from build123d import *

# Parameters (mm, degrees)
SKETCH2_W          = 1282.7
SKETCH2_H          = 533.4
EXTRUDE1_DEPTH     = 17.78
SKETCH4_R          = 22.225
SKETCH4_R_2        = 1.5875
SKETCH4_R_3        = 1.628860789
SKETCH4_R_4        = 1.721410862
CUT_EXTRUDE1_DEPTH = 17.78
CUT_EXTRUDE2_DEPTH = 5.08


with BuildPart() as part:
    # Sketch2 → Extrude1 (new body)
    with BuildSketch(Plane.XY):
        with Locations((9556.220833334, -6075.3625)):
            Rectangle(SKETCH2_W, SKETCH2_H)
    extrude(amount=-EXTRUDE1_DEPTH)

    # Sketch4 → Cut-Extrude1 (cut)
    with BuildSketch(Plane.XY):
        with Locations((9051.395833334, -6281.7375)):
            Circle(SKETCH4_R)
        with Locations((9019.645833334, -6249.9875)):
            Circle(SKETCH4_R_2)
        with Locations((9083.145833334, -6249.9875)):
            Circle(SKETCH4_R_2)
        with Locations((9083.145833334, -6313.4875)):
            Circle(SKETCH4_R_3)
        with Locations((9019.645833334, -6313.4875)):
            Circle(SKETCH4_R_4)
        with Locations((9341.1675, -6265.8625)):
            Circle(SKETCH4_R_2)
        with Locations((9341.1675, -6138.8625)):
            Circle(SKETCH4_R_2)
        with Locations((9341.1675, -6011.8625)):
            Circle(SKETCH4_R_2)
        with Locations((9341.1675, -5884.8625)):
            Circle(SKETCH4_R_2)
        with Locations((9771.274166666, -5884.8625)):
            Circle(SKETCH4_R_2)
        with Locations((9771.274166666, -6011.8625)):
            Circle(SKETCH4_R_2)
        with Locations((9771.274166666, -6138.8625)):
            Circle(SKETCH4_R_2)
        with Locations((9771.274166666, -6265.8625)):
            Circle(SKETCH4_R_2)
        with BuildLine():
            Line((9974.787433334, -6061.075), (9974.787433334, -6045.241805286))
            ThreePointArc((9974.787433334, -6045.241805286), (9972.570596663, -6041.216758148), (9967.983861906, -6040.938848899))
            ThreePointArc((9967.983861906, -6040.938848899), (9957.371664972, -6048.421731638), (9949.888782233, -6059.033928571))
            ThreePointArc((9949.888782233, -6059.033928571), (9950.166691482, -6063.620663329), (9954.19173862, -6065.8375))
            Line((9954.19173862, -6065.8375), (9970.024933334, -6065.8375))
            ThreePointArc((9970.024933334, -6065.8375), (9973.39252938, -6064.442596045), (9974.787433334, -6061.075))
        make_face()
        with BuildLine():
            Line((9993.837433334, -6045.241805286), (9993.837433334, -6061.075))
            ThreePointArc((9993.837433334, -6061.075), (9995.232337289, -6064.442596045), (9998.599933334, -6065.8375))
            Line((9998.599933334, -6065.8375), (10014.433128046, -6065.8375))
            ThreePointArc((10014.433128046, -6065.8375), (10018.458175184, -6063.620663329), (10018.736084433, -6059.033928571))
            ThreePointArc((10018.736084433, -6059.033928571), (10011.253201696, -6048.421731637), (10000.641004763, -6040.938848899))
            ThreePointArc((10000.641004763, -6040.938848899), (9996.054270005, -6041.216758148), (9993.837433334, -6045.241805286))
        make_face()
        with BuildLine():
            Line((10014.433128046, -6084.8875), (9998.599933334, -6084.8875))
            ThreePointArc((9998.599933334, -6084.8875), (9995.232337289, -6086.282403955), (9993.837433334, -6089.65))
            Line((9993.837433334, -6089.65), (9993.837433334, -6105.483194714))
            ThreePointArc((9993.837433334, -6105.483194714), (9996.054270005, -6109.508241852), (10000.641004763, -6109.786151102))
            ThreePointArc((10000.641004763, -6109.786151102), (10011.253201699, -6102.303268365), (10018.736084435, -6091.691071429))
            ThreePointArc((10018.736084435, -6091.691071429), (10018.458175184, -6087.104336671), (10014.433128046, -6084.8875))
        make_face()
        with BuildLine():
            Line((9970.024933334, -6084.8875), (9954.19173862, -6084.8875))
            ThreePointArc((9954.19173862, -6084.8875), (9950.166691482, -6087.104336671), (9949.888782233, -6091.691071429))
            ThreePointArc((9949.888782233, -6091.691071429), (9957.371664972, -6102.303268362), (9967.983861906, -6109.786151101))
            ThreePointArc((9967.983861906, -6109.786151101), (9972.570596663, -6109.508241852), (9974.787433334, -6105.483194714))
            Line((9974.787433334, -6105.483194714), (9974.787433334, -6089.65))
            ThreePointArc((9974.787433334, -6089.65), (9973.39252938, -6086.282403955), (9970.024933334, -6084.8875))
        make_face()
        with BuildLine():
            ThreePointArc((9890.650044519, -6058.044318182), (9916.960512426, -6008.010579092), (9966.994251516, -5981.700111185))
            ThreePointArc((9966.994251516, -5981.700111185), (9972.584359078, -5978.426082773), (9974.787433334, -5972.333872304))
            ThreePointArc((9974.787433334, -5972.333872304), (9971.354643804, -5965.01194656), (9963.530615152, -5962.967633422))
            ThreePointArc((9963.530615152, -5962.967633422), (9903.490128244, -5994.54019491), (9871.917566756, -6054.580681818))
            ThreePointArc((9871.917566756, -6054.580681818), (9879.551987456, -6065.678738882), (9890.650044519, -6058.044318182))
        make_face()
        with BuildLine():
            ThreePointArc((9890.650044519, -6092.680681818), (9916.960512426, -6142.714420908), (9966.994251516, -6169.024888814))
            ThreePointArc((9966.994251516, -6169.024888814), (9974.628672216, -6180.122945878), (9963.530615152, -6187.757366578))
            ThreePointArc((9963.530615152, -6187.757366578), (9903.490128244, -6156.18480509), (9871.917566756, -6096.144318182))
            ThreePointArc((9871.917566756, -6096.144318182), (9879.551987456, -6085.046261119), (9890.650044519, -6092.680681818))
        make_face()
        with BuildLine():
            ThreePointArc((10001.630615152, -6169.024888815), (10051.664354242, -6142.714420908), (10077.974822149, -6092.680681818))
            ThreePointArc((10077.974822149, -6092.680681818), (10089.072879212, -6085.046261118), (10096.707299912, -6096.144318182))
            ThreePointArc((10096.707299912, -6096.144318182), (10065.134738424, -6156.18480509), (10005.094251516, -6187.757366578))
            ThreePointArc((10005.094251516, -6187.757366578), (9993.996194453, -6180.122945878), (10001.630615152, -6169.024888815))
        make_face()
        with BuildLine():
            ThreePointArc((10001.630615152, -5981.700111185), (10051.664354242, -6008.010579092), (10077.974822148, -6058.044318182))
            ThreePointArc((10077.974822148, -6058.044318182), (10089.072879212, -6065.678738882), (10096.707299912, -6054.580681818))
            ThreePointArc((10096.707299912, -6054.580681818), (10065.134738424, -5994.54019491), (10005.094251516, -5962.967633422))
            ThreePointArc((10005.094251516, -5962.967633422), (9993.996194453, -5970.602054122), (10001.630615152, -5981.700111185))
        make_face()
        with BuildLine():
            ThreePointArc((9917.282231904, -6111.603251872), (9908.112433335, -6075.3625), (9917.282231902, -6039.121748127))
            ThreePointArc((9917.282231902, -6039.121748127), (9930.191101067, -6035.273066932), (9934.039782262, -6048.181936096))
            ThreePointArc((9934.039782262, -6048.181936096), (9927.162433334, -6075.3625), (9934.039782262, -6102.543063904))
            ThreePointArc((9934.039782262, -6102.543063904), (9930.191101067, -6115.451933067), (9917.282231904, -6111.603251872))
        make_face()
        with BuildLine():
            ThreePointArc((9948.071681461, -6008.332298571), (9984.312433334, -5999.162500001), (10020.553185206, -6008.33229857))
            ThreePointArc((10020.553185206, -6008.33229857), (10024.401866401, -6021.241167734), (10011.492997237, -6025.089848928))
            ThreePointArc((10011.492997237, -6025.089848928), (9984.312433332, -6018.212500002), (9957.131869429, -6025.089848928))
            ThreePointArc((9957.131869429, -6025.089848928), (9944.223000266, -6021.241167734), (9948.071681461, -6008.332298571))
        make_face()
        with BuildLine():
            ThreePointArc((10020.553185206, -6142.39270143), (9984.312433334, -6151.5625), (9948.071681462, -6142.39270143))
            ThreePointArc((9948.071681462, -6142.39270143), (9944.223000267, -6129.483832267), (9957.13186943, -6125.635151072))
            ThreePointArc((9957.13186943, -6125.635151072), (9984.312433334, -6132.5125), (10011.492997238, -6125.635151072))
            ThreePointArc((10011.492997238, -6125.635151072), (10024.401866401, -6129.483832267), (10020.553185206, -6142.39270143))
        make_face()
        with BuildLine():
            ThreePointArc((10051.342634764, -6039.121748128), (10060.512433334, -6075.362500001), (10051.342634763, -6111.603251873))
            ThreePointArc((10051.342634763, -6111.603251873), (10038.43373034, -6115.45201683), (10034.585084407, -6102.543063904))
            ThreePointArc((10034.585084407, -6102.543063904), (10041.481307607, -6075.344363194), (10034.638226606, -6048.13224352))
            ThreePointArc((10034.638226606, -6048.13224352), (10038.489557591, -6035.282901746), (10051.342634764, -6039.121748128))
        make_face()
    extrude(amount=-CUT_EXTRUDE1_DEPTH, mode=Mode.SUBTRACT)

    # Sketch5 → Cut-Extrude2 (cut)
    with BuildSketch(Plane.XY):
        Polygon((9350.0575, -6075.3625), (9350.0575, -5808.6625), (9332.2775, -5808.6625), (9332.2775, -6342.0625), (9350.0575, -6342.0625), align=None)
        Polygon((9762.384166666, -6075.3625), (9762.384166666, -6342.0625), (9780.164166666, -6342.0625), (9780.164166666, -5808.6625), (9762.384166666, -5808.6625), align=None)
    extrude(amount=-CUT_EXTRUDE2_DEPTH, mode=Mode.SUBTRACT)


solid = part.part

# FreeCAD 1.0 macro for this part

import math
import FreeCAD as App
import Part
import Sketcher
from FreeCAD import Vector
Q = App.Units.Quantity


def add_polygon(sketch, points):
    """Adds a closed chain of lines whose ends are joined by coincident constraints."""
    first, n = sketch.GeometryCount, len(points)
    for a, b in zip(points, points[1:] + points[:1]):
        sketch.addGeometry(Part.LineSegment(App.Vector(*a, 0), App.Vector(*b, 0)), False)
    for i in range(n):
        sketch.addConstraint(Sketcher.Constraint("Coincident", first + i, 2, first + (i + 1) % n, 1))

doc = App.newDocument("Part")
body = doc.addObject("PartDesign::Body", "Body")

sketch1 = body.newObject("Sketcher::SketchObject", "Sketch")
sketch1.AttachmentSupport = (doc.getObject("XY_Plane"), [""])
sketch1.MapMode = "FlatFace"
add_polygon(sketch1, [(8915, -5809), (8915, -6342), (10198, -6342), (10198, -5809)])
sketch1.addConstraint(Sketcher.Constraint("Vertical", 0))
sketch1.addConstraint(Sketcher.Constraint("Horizontal", 1))
sketch1.addConstraint(Sketcher.Constraint("Vertical", 2))
sketch1.addConstraint(Sketcher.Constraint("Horizontal", 3))
sketch1.addConstraint(Sketcher.Constraint("DistanceY", 0, 2, 0, 1, Q("21 in")))
sketch1.addConstraint(Sketcher.Constraint("DistanceX", 1, 1, 1, 2, Q("50.5 in")))
sketch1.addConstraint(Sketcher.Constraint("DistanceY", 0, 2, -1, 1, Q("249.6875 in")))
sketch1.addConstraint(Sketcher.Constraint("DistanceX", -1, 1, 0, 2, 8914.870833))
pad1 = body.newObject("PartDesign::Pad", "Pad")
pad1.Profile = sketch1
pad1.Length = Q("0.7 in")
pad1.Reversed = True

sketch2 = body.newObject("Sketcher::SketchObject", "Sketch001")
sketch2.AttachmentSupport = (doc.getObject("XY_Plane"), [""])
sketch2.MapMode = "FlatFace"
sketch2.addGeometry(Part.Circle(Vector(9051.4, -6281.7, 0), Vector(0, 0, 1), 22.2), False)
sketch2.addGeometry(Part.Circle(Vector(9019.6, -6250, 0), Vector(0, 0, 1), 1.6), False)
sketch2.addGeometry(Part.Circle(Vector(9083.1, -6250, 0), Vector(0, 0, 1), 1.6), False)
sketch2.addGeometry(Part.Circle(Vector(9083.1, -6313.5, 0), Vector(0, 0, 1), 1.6), False)
sketch2.addGeometry(Part.Circle(Vector(9019.6, -6313.5, 0), Vector(0, 0, 1), 1.7), False)
sketch2.addGeometry(Part.Circle(Vector(9341.2, -6265.9, 0), Vector(0, 0, 1), 1.6), False)
sketch2.addGeometry(Part.Circle(Vector(9341.2, -6138.9, 0), Vector(0, 0, 1), 1.6), False)
sketch2.addGeometry(Part.Circle(Vector(9341.2, -6011.9, 0), Vector(0, 0, 1), 1.6), False)
sketch2.addGeometry(Part.Circle(Vector(9341.2, -5884.9, 0), Vector(0, 0, 1), 1.6), False)
sketch2.addGeometry(Part.Circle(Vector(9771.3, -5884.9, 0), Vector(0, 0, 1), 1.6), False)
sketch2.addGeometry(Part.Circle(Vector(9771.3, -6011.9, 0), Vector(0, 0, 1), 1.6), False)
sketch2.addGeometry(Part.Circle(Vector(9771.3, -6138.9, 0), Vector(0, 0, 1), 1.6), False)
sketch2.addGeometry(Part.Circle(Vector(9771.3, -6265.9, 0), Vector(0, 0, 1), 1.6), False)
sketch2.addGeometry(Part.LineSegment(Vector(9974.8, -6061.1, 0), Vector(9974.8, -6045.2, 0)), False)
sketch2.addGeometry(Part.ArcOfCircle(Part.Circle(Vector(9970, -6045.2, 0), Vector(0, 0, 1), 4.8), math.radians(0), math.radians(115)), False)
sketch2.addGeometry(Part.ArcOfCircle(Part.Circle(Vector(9984.3, -6075.4, 0), Vector(0, 0, 1), 38.1), math.radians(115), math.radians(155)), False)
sketch2.addGeometry(Part.ArcOfCircle(Part.Circle(Vector(9954.2, -6061.1, 0), Vector(0, 0, 1), 4.8), math.radians(155), math.radians(270)), False)
sketch2.addGeometry(Part.LineSegment(Vector(9954.2, -6065.8, 0), Vector(9970, -6065.8, 0)), False)
sketch2.addGeometry(Part.ArcOfCircle(Part.Circle(Vector(9970, -6061.1, 0), Vector(0, 0, 1), 4.8), math.radians(-90), math.radians(0)), False)
sketch2.addGeometry(Part.LineSegment(Vector(9993.8, -6045.2, 0), Vector(9993.8, -6061.1, 0)), False)
sketch2.addGeometry(Part.ArcOfCircle(Part.Circle(Vector(9998.6, -6061.1, 0), Vector(0, 0, 1), 4.8), math.radians(-180), math.radians(-90)), False)
sketch2.addGeometry(Part.LineSegment(Vector(9998.6, -6065.8, 0), Vector(10014.4, -6065.8, 0)), False)
sketch2.addGeometry(Part.ArcOfCircle(Part.Circle(Vector(10014.4, -6061.1, 0), Vector(0, 0, 1), 4.8), math.radians(-90), math.radians(25)), False)
sketch2.addGeometry(Part.ArcOfCircle(Part.Circle(Vector(9984.3, -6075.4, 0), Vector(0, 0, 1), 38.1), math.radians(25), math.radians(65)), False)
sketch2.addGeometry(Part.ArcOfCircle(Part.Circle(Vector(9998.6, -6045.2, 0), Vector(0, 0, 1), 4.8), math.radians(65), math.radians(180)), False)
sketch2.addGeometry(Part.LineSegment(Vector(10014.4, -6084.9, 0), Vector(9998.6, -6084.9, 0)), False)
sketch2.addGeometry(Part.ArcOfCircle(Part.Circle(Vector(9998.6, -6089.7, 0), Vector(0, 0, 1), 4.8), math.radians(90), math.radians(180)), False)
sketch2.addGeometry(Part.LineSegment(Vector(9993.8, -6089.6, 0), Vector(9993.8, -6105.5, 0)), False)
sketch2.addGeometry(Part.ArcOfCircle(Part.Circle(Vector(9998.6, -6105.5, 0), Vector(0, 0, 1), 4.8), math.radians(-180), math.radians(-65)), False)
sketch2.addGeometry(Part.ArcOfCircle(Part.Circle(Vector(9984.3, -6075.4, 0), Vector(0, 0, 1), 38.1), math.radians(-65), math.radians(-25)), False)
sketch2.addGeometry(Part.ArcOfCircle(Part.Circle(Vector(10014.4, -6089.7, 0), Vector(0, 0, 1), 4.8), math.radians(-25), math.radians(90)), False)
sketch2.addGeometry(Part.LineSegment(Vector(9970, -6084.9, 0), Vector(9954.2, -6084.9, 0)), False)
sketch2.addGeometry(Part.ArcOfCircle(Part.Circle(Vector(9954.2, -6089.6, 0), Vector(0, 0, 1), 4.8), math.radians(90), math.radians(205)), False)
sketch2.addGeometry(Part.ArcOfCircle(Part.Circle(Vector(9984.3, -6075.4, 0), Vector(0, 0, 1), 38.1), math.radians(-155), math.radians(-115)), False)
sketch2.addGeometry(Part.ArcOfCircle(Part.Circle(Vector(9970, -6105.5, 0), Vector(0, 0, 1), 4.8), math.radians(-115), math.radians(0)), False)
sketch2.addGeometry(Part.LineSegment(Vector(9974.8, -6105.5, 0), Vector(9974.8, -6089.6, 0)), False)
sketch2.addGeometry(Part.ArcOfCircle(Part.Circle(Vector(9970, -6089.6, 0), Vector(0, 0, 1), 4.8), math.radians(0), math.radians(90)), False)
sketch2.addGeometry(Part.ArcOfCircle(Part.Circle(Vector(9984.3, -6075.4, 0), Vector(0, 0, 1), 95.3), math.radians(100), math.radians(170)), False)
sketch2.addGeometry(Part.ArcOfCircle(Part.Circle(Vector(9965.3, -5972.3, 0), Vector(0, 0, 1), 9.5), math.radians(-80), math.radians(0)), False)
sketch2.addGeometry(Part.ArcOfCircle(Part.Circle(Vector(9965.3, -5972.3, 0), Vector(0, 0, 1), 9.5), math.radians(0), math.radians(100)), False)
sketch2.addGeometry(Part.ArcOfCircle(Part.Circle(Vector(9984.3, -6075.4, 0), Vector(0, 0, 1), 114.3), math.radians(100), math.radians(170)), False)
sketch2.addGeometry(Part.ArcOfCircle(Part.Circle(Vector(9881.3, -6056.3, 0), Vector(0, 0, 1), 9.5), math.radians(170), math.radians(350)), False)
sketch2.addGeometry(Part.ArcOfCircle(Part.Circle(Vector(9984.3, -6075.4, 0), Vector(0, 0, 1), 95.2), math.radians(-170), math.radians(-100)), False)
sketch2.addGeometry(Part.ArcOfCircle(Part.Circle(Vector(9881.3, -6094.4, 0), Vector(0, 0, 1), 9.5), math.radians(10), math.radians(190)), False)
sketch2.addGeometry(Part.ArcOfCircle(Part.Circle(Vector(9984.3, -6075.4, 0), Vector(0, 0, 1), 114.3), math.radians(-170), math.radians(-100)), False)
sketch2.addGeometry(Part.ArcOfCircle(Part.Circle(Vector(9965.3, -6178.4, 0), Vector(0, 0, 1), 9.5), math.radians(-100), math.radians(80)), False)
sketch2.addGeometry(Part.ArcOfCircle(Part.Circle(Vector(9984.3, -6075.4, 0), Vector(0, 0, 1), 95.3), math.radians(-80), math.radians(-10)), False)
sketch2.addGeometry(Part.ArcOfCircle(Part.Circle(Vector(10003.4, -6178.4, 0), Vector(0, 0, 1), 9.5), math.radians(100), math.radians(280)), False)
sketch2.addGeometry(Part.ArcOfCircle(Part.Circle(Vector(9984.3, -6075.4, 0), Vector(0, 0, 1), 114.3), math.radians(-80), math.radians(-10)), False)
sketch2.addGeometry(Part.ArcOfCircle(Part.Circle(Vector(10087.3, -6094.4, 0), Vector(0, 0, 1), 9.5), math.radians(-10), math.radians(170)), False)
sketch2.addGeometry(Part.ArcOfCircle(Part.Circle(Vector(9984.3, -6075.4, 0), Vector(0, 0, 1), 95.2), math.radians(10), math.radians(80)), False)
sketch2.addGeometry(Part.ArcOfCircle(Part.Circle(Vector(10087.3, -6056.3, 0), Vector(0, 0, 1), 9.5), math.radians(-170), math.radians(10)), False)
sketch2.addGeometry(Part.ArcOfCircle(Part.Circle(Vector(9984.3, -6075.4, 0), Vector(0, 0, 1), 114.3), math.radians(10), math.radians(80)), False)
sketch2.addGeometry(Part.ArcOfCircle(Part.Circle(Vector(10003.4, -5972.3, 0), Vector(0, 0, 1), 9.5), math.radians(80), math.radians(260)), False)
sketch2.addGeometry(Part.ArcOfCircle(Part.Circle(Vector(9984.3, -6075.4, 0), Vector(0, 0, 1), 76.2), math.radians(152), math.radians(208)), False)
sketch2.addGeometry(Part.ArcOfCircle(Part.Circle(Vector(9925.7, -6107.1, 0), Vector(0, 0, 1), 9.5), math.radians(-152), math.radians(28)), False)
sketch2.addGeometry(Part.ArcOfCircle(Part.Circle(Vector(9984.3, -6075.4, 0), Vector(0, 0, 1), 57.1), math.radians(152), math.radians(208)), False)
sketch2.addGeometry(Part.ArcOfCircle(Part.Circle(Vector(9925.7, -6043.7, 0), Vector(0, 0, 1), 9.5), math.radians(-28), math.radians(152)), False)
sketch2.addGeometry(Part.ArcOfCircle(Part.Circle(Vector(9984.3, -6075.4, 0), Vector(0, 0, 1), 76.2), math.radians(62), math.radians(118)), False)
sketch2.addGeometry(Part.ArcOfCircle(Part.Circle(Vector(9952.6, -6016.7, 0), Vector(0, 0, 1), 9.5), math.radians(118), math.radians(298)), False)
sketch2.addGeometry(Part.ArcOfCircle(Part.Circle(Vector(9984.3, -6075.4, 0), Vector(0, 0, 1), 57.2), math.radians(62), math.radians(118)), False)
sketch2.addGeometry(Part.ArcOfCircle(Part.Circle(Vector(10016, -6016.7, 0), Vector(0, 0, 1), 9.5), math.radians(-118), math.radians(62)), False)
sketch2.addGeometry(Part.ArcOfCircle(Part.Circle(Vector(9984.3, -6075.4, 0), Vector(0, 0, 1), 76.2), math.radians(-118), math.radians(-62)), False)
sketch2.addGeometry(Part.ArcOfCircle(Part.Circle(Vector(10016, -6134, 0), Vector(0, 0, 1), 9.5), math.radians(-62), math.radians(118)), False)
sketch2.addGeometry(Part.ArcOfCircle(Part.Circle(Vector(9984.3, -6075.4, 0), Vector(0, 0, 1), 57.1), math.radians(-118), math.radians(-62)), False)
sketch2.addGeometry(Part.ArcOfCircle(Part.Circle(Vector(9952.6, -6134, 0), Vector(0, 0, 1), 9.5), math.radians(62), math.radians(242)), False)
sketch2.addGeometry(Part.ArcOfCircle(Part.Circle(Vector(9984.3, -6075.4, 0), Vector(0, 0, 1), 76.2), math.radians(-28), math.radians(28)), False)
sketch2.addGeometry(Part.ArcOfCircle(Part.Circle(Vector(10043, -6043.6, 0), Vector(0, 0, 1), 9.5), math.radians(28), math.radians(208)), False)
sketch2.addGeometry(Part.ArcOfCircle(Part.Circle(Vector(9984.2, -6075.3, 0), Vector(0, 0, 1), 57.3), math.radians(-28), math.radians(28)), False)
sketch2.addGeometry(Part.ArcOfCircle(Part.Circle(Vector(10043, -6107.1, 0), Vector(0, 0, 1), 9.5), math.radians(152), math.radians(332)), False)
sketch2.addConstraint(Sketcher.Constraint("Tangent", 13, 2, 14, 1))
sketch2.addConstraint(Sketcher.Constraint("Tangent", 14, 2, 15, 1))
sketch2.addConstraint(Sketcher.Constraint("Tangent", 15, 2, 16, 1))
sketch2.addConstraint(Sketcher.Constraint("Tangent", 16, 2, 17, 1))
sketch2.addConstraint(Sketcher.Constraint("Tangent", 17, 2, 18, 1))
sketch2.addConstraint(Sketcher.Constraint("Tangent", 18, 2, 13, 1))
sketch2.addConstraint(Sketcher.Constraint("Tangent", 19, 2, 20, 1))
sketch2.addConstraint(Sketcher.Constraint("Tangent", 20, 2, 21, 1))
sketch2.addConstraint(Sketcher.Constraint("Tangent", 21, 2, 22, 1))
sketch2.addConstraint(Sketcher.Constraint("Tangent", 22, 2, 23, 1))
sketch2.addConstraint(Sketcher.Constraint("Tangent", 23, 2, 24, 1))
sketch2.addConstraint(Sketcher.Constraint("Tangent", 24, 2, 19, 1))
sketch2.addConstraint(Sketcher.Constraint("Tangent", 25, 2, 26, 1))
sketch2.addConstraint(Sketcher.Constraint("Tangent", 26, 2, 27, 1))
sketch2.addConstraint(Sketcher.Constraint("Tangent", 27, 2, 28, 1))
sketch2.addConstraint(Sketcher.Constraint("Tangent", 28, 2, 29, 1))
sketch2.addConstraint(Sketcher.Constraint("Tangent", 29, 2, 30, 1))
sketch2.addConstraint(Sketcher.Constraint("Tangent", 30, 2, 25, 1))
sketch2.addConstraint(Sketcher.Constraint("Tangent", 31, 2, 32, 1))
sketch2.addConstraint(Sketcher.Constraint("Tangent", 32, 2, 33, 1))
sketch2.addConstraint(Sketcher.Constraint("Tangent", 33, 2, 34, 1))
sketch2.addConstraint(Sketcher.Constraint("Tangent", 34, 2, 35, 1))
sketch2.addConstraint(Sketcher.Constraint("Tangent", 35, 2, 36, 1))
sketch2.addConstraint(Sketcher.Constraint("Tangent", 36, 2, 31, 1))
sketch2.addConstraint(Sketcher.Constraint("Tangent", 37, 1, 38, 1))
sketch2.addConstraint(Sketcher.Constraint("Tangent", 38, 2, 39, 1))
sketch2.addConstraint(Sketcher.Constraint("Tangent", 39, 2, 40, 1))
sketch2.addConstraint(Sketcher.Constraint("Tangent", 40, 2, 41, 1))
sketch2.addConstraint(Sketcher.Constraint("Tangent", 41, 2, 37, 2))
sketch2.addConstraint(Sketcher.Constraint("Tangent", 42, 1, 43, 1))
sketch2.addConstraint(Sketcher.Constraint("Tangent", 43, 2, 44, 1))
sketch2.addConstraint(Sketcher.Constraint("Tangent", 44, 2, 45, 1))
sketch2.addConstraint(Sketcher.Constraint("Tangent", 45, 2, 42, 2))
sketch2.addConstraint(Sketcher.Constraint("Tangent", 46, 1, 47, 1))
sketch2.addConstraint(Sketcher.Constraint("Tangent", 47, 2, 48, 1))
sketch2.addConstraint(Sketcher.Constraint("Tangent", 48, 2, 49, 1))
sketch2.addConstraint(Sketcher.Constraint("Tangent", 49, 2, 46, 2))
sketch2.addConstraint(Sketcher.Constraint("Tangent", 50, 1, 51, 1))
sketch2.addConstraint(Sketcher.Constraint("Tangent", 51, 2, 52, 1))
sketch2.addConstraint(Sketcher.Constraint("Tangent", 52, 2, 53, 1))
sketch2.addConstraint(Sketcher.Constraint("Tangent", 53, 2, 50, 2))
sketch2.addConstraint(Sketcher.Constraint("Tangent", 54, 2, 55, 1))
sketch2.addConstraint(Sketcher.Constraint("Tangent", 55, 2, 56, 2))
sketch2.addConstraint(Sketcher.Constraint("Tangent", 56, 1, 57, 1))
sketch2.addConstraint(Sketcher.Constraint("Tangent", 57, 2, 54, 1))
sketch2.addConstraint(Sketcher.Constraint("Tangent", 58, 2, 59, 1))
sketch2.addConstraint(Sketcher.Constraint("Tangent", 59, 2, 60, 2))
sketch2.addConstraint(Sketcher.Constraint("Tangent", 60, 1, 61, 1))
sketch2.addConstraint(Sketcher.Constraint("Tangent", 61, 2, 58, 1))
sketch2.addConstraint(Sketcher.Constraint("Tangent", 62, 2, 63, 1))
sketch2.addConstraint(Sketcher.Constraint("Tangent", 63, 2, 64, 2))
sketch2.addConstraint(Sketcher.Constraint("Tangent", 64, 1, 65, 1))
sketch2.addConstraint(Sketcher.Constraint("Tangent", 65, 2, 62, 1))
sketch2.addConstraint(Sketcher.Constraint("Tangent", 66, 2, 67, 1))
sketch2.addConstraint(Sketcher.Constraint("Tangent", 67, 2, 68, 2))
sketch2.addConstraint(Sketcher.Constraint("Tangent", 68, 1, 69, 1))
sketch2.addConstraint(Sketcher.Constraint("Coincident", 69, 2, 66, 1))
sketch2.addConstraint(Sketcher.Constraint("Vertical", 13))
sketch2.addConstraint(Sketcher.Constraint("Horizontal", 17))
sketch2.addConstraint(Sketcher.Constraint("Vertical", 19))
sketch2.addConstraint(Sketcher.Constraint("Horizontal", 21))
sketch2.addConstraint(Sketcher.Constraint("Horizontal", 25))
sketch2.addConstraint(Sketcher.Constraint("Vertical", 27))
sketch2.addConstraint(Sketcher.Constraint("Horizontal", 31))
sketch2.addConstraint(Sketcher.Constraint("Vertical", 35))
sketch2.addConstraint(Sketcher.Constraint("Coincident", 23, 3, 15, 3))
sketch2.addConstraint(Sketcher.Constraint("Coincident", 29, 3, 15, 3))
sketch2.addConstraint(Sketcher.Constraint("Coincident", 33, 3, 15, 3))
sketch2.addConstraint(Sketcher.Constraint("Coincident", 37, 3, 15, 3))
sketch2.addConstraint(Sketcher.Constraint("Coincident", 40, 3, 15, 3))
sketch2.addConstraint(Sketcher.Constraint("Coincident", 42, 3, 15, 3))
sketch2.addConstraint(Sketcher.Constraint("Coincident", 44, 3, 15, 3))
sketch2.addConstraint(Sketcher.Constraint("Coincident", 46, 3, 15, 3))
sketch2.addConstraint(Sketcher.Constraint("Coincident", 48, 3, 15, 3))
sketch2.addConstraint(Sketcher.Constraint("Coincident", 50, 3, 15, 3))
sketch2.addConstraint(Sketcher.Constraint("Coincident", 52, 3, 15, 3))
sketch2.addConstraint(Sketcher.Constraint("Coincident", 54, 3, 15, 3))
sketch2.addConstraint(Sketcher.Constraint("Coincident", 56, 3, 15, 3))
sketch2.addConstraint(Sketcher.Constraint("Coincident", 58, 3, 15, 3))
sketch2.addConstraint(Sketcher.Constraint("Coincident", 60, 3, 15, 3))
sketch2.addConstraint(Sketcher.Constraint("Coincident", 62, 3, 15, 3))
sketch2.addConstraint(Sketcher.Constraint("Coincident", 64, 3, 15, 3))
sketch2.addConstraint(Sketcher.Constraint("Coincident", 66, 3, 15, 3))
sketch2.addConstraint(Sketcher.Constraint("Equal", 1, 2))
sketch2.addConstraint(Sketcher.Constraint("Equal", 2, 5))
sketch2.addConstraint(Sketcher.Constraint("Equal", 5, 6))
sketch2.addConstraint(Sketcher.Constraint("Equal", 6, 7))
sketch2.addConstraint(Sketcher.Constraint("Equal", 7, 8))
sketch2.addConstraint(Sketcher.Constraint("Equal", 8, 9))
sketch2.addConstraint(Sketcher.Constraint("Equal", 9, 10))
sketch2.addConstraint(Sketcher.Constraint("Equal", 10, 11))
sketch2.addConstraint(Sketcher.Constraint("Equal", 11, 12))
sketch2.addConstraint(Sketcher.Constraint("Equal", 14, 16))
sketch2.addConstraint(Sketcher.Constraint("Equal", 16, 18))
sketch2.addConstraint(Sketcher.Constraint("Equal", 18, 20))
sketch2.addConstraint(Sketcher.Constraint("Equal", 20, 22))
sketch2.addConstraint(Sketcher.Constraint("Equal", 15, 23))
sketch2.addConstraint(Sketcher.Constraint("Equal", 22, 24))
sketch2.addConstraint(Sketcher.Constraint("Equal", 24, 26))
sketch2.addConstraint(Sketcher.Constraint("Equal", 26, 28))
sketch2.addConstraint(Sketcher.Constraint("Equal", 23, 29))
sketch2.addConstraint(Sketcher.Constraint("Equal", 28, 30))
sketch2.addConstraint(Sketcher.Constraint("Equal", 30, 32))
sketch2.addConstraint(Sketcher.Constraint("Equal", 29, 33))
sketch2.addConstraint(Sketcher.Constraint("Equal", 32, 34))
sketch2.addConstraint(Sketcher.Constraint("Equal", 34, 36))
sketch2.addConstraint(Sketcher.Constraint("Equal", 38, 39))
sketch2.addConstraint(Sketcher.Constraint("Equal", 37, 42))
sketch2.addConstraint(Sketcher.Constraint("Equal", 41, 43))
sketch2.addConstraint(Sketcher.Constraint("Equal", 42, 46))
sketch2.addConstraint(Sketcher.Constraint("Equal", 45, 47))
sketch2.addConstraint(Sketcher.Constraint("Equal", 46, 50))
sketch2.addConstraint(Sketcher.Constraint("Equal", 49, 51))
sketch2.addConstraint(Sketcher.Constraint("Equal", 53, 55))
sketch2.addConstraint(Sketcher.Constraint("Equal", 54, 58))
sketch2.addConstraint(Sketcher.Constraint("Equal", 57, 59))
sketch2.addConstraint(Sketcher.Constraint("Equal", 58, 62))
sketch2.addConstraint(Sketcher.Constraint("Equal", 61, 63))
sketch2.addConstraint(Sketcher.Constraint("Equal", 62, 66))
sketch2.addConstraint(Sketcher.Constraint("Equal", 65, 69))
sketch2.addConstraint(Sketcher.Constraint("Horizontal", 1, 3, 2, 3))
sketch2.addConstraint(Sketcher.Constraint("Horizontal", 3, 3, 4, 3))
sketch2.addConstraint(Sketcher.Constraint("Horizontal", 8, 3, 9, 3))
sketch2.addConstraint(Sketcher.Constraint("Horizontal", 7, 3, 10, 3))
sketch2.addConstraint(Sketcher.Constraint("Horizontal", 6, 3, 11, 3))
sketch2.addConstraint(Sketcher.Constraint("Horizontal", 5, 3, 12, 3))
sketch2.addConstraint(Sketcher.Constraint("Horizontal", 18, 3, 20, 3))
sketch2.addConstraint(Sketcher.Constraint("Horizontal", 14, 3, 24, 3))
sketch2.addConstraint(Sketcher.Constraint("Horizontal", 30, 3, 32, 3))
sketch2.addConstraint(Sketcher.Constraint("Horizontal", 28, 3, 34, 3))
sketch2.addConstraint(Sketcher.Constraint("Horizontal", 45, 3, 47, 3))
sketch2.addConstraint(Sketcher.Constraint("Horizontal", 43, 3, 49, 3))
sketch2.addConstraint(Sketcher.Constraint("Horizontal", 41, 3, 51, 3))
sketch2.addConstraint(Sketcher.Constraint("Horizontal", 39, 3, 53, 3))
sketch2.addConstraint(Sketcher.Constraint("Horizontal", 59, 3, 61, 3))
sketch2.addConstraint(Sketcher.Constraint("Horizontal", 63, 3, 65, 3))
sketch2.addConstraint(Sketcher.Constraint("Horizontal", 53, 3, 38, 2))
sketch2.addConstraint(Sketcher.Constraint("Horizontal", 57, 2, 66, 2))
sketch2.addConstraint(Sketcher.Constraint("Horizontal", 55, 2, 68, 1))
sketch2.addConstraint(Sketcher.Constraint("Horizontal", 54, 2, 69, 2))
sketch2.addConstraint(Sketcher.Constraint("Vertical", 2, 3, 3, 3))
sketch2.addConstraint(Sketcher.Constraint("Vertical", 1, 3, 4, 3))
sketch2.addConstraint(Sketcher.Constraint("Vertical", 5, 3, 6, 3))
sketch2.addConstraint(Sketcher.Constraint("Vertical", 6, 3, 7, 3))
sketch2.addConstraint(Sketcher.Constraint("Vertical", 7, 3, 8, 3))
sketch2.addConstraint(Sketcher.Constraint("Vertical", 9, 3, 10, 3))
sketch2.addConstraint(Sketcher.Constraint("Vertical", 10, 3, 11, 3))
sketch2.addConstraint(Sketcher.Constraint("Vertical", 11, 3, 12, 3))
sketch2.addConstraint(Sketcher.Constraint("Vertical", 24, 3, 26, 3))
sketch2.addConstraint(Sketcher.Constraint("Vertical", 22, 3, 30, 3))
sketch2.addConstraint(Sketcher.Constraint("Vertical", 41, 3, 43, 3))
sketch2.addConstraint(Sketcher.Constraint("Vertical", 39, 3, 45, 3))
sketch2.addConstraint(Sketcher.Constraint("Vertical", 55, 3, 57, 3))
sketch2.addConstraint(Sketcher.Constraint("Vertical", 61, 3, 63, 3))
sketch2.addConstraint(Sketcher.Constraint("Vertical", 35, 2, 38, 2))
sketch2.addConstraint(Sketcher.Constraint("Equal", 31, 13))
sketch2.addConstraint(Sketcher.Constraint("Radius", 54, Q("3 in")))
sketch2.addConstraint(Sketcher.Constraint("Radius", 15, Q("1.5 in")))
sketch2.addConstraint(Sketcher.Constraint("Radius", 40, Q("4.5 in")))
sketch2.addConstraint(Sketcher.Constraint("Diameter", 0, Q("1.75 in")))
sketch2.addConstraint(Sketcher.Constraint("Radius", 37, Q("3.75 in")))
sketch2.addConstraint(Sketcher.Constraint("Diameter", 1, Q("0.125 in")))
sketch2.addConstraint(Sketcher.Constraint("Radius", 14, Q("0.1875 in")))
sketch2.addConstraint(Sketcher.Constraint("DistanceY", 26, 3, -1, 1, Q("239.75 in")))
sketch2.addConstraint(Sketcher.Constraint("Diameter", 3, 3.257722))
sketch2.addConstraint(Sketcher.Constraint("Diameter", 4, 3.442822))
sketch2.addConstraint(Sketcher.Constraint("DistanceY", 0, 3, -1, 1, Q("247.3125 in")))
sketch2.addConstraint(Sketcher.Constraint("DistanceY", 1, 3, -1, 1, Q("246.0625 in")))
sketch2.addConstraint(Sketcher.Constraint("DistanceY", 3, 3, -1, 1, Q("248.5625 in")))
sketch2.addConstraint(Sketcher.Constraint("DistanceY", 5, 3, -1, 1, Q("246.6875 in")))
sketch2.addConstraint(Sketcher.Constraint("DistanceY", 6, 3, -1, 1, Q("241.6875 in")))
sketch2.addConstraint(Sketcher.Constraint("DistanceY", 7, 3, -1, 1, Q("236.6875 in")))
sketch2.addConstraint(Sketcher.Constraint("DistanceY", 8, 3, -1, 1, Q("231.6875 in")))
sketch2.addConstraint(Sketcher.Constraint("DistanceY", 15, 3, -1, 1, Q("239.1875 in")))
sketch2.addConstraint(Sketcher.Constraint("DistanceY", 41, 3, -1, 1, Q("238.4375 in")))
sketch2.addConstraint(Sketcher.Constraint("Radius", 67, 9.489818))
sketch2.addConstraint(Sketcher.Constraint("Radius", 68, 57.30471))
sketch2.addConstraint(Sketcher.Constraint("DistanceX", -1, 1, 5, 3, Q("367.7625 in")))
sketch2.addConstraint(Sketcher.Constraint("DistanceX", -1, 1, 48, 2, 10096.7073))
sketch2.addConstraint(Sketcher.Constraint("DistanceY", 58, 2, -1, 1, 6008.332299))
sketch2.addConstraint(Sketcher.Constraint("DistanceY", 67, 3, -1, 1, 6043.63511))
sketch2.addConstraint(Sketcher.Constraint("DistanceX", -1, 1, 0, 3, 9051.395833))
sketch2.addConstraint(Sketcher.Constraint("DistanceX", -1, 1, 1, 3, 9019.645833))
sketch2.addConstraint(Sketcher.Constraint("DistanceX", -1, 1, 2, 3, 9083.145833))
sketch2.addConstraint(Sketcher.Constraint("DistanceX", -1, 1, 9, 3, 9771.274167))
pocket1 = body.newObject("PartDesign::Pocket", "Pocket")
pocket1.Profile = sketch2
pocket1.Length = Q("0.7 in")

sketch3 = body.newObject("Sketcher::SketchObject", "Sketch002")
sketch3.AttachmentSupport = (doc.getObject("XY_Plane"), [""])
sketch3.MapMode = "FlatFace"
add_polygon(sketch3, [(9350, -5809), (9332, -5809), (9332, -6342), (9350, -6342)])
add_polygon(sketch3, [(9762, -6342), (9780, -6342), (9780, -5809), (9762, -5809)])
sketch3.addConstraint(Sketcher.Constraint("Horizontal", 0))
sketch3.addConstraint(Sketcher.Constraint("Vertical", 1))
sketch3.addConstraint(Sketcher.Constraint("Horizontal", 2))
sketch3.addConstraint(Sketcher.Constraint("Vertical", 3))
sketch3.addConstraint(Sketcher.Constraint("Horizontal", 4))
sketch3.addConstraint(Sketcher.Constraint("Vertical", 5))
sketch3.addConstraint(Sketcher.Constraint("Horizontal", 6))
sketch3.addConstraint(Sketcher.Constraint("Vertical", 7))
sketch3.addConstraint(Sketcher.Constraint("Horizontal", 2, 2, 4, 2))
sketch3.addConstraint(Sketcher.Constraint("Horizontal", 3, 2, 5, 2))
sketch3.addConstraint(Sketcher.Constraint("Equal", 2, 4))
sketch3.addConstraint(Sketcher.Constraint("DistanceY", 1, 2, 1, 1, Q("21 in")))
sketch3.addConstraint(Sketcher.Constraint("DistanceX", 0, 2, 0, 1, Q("0.7 in")))
sketch3.addConstraint(Sketcher.Constraint("DistanceY", 0, 2, -1, 1, Q("228.6875 in")))
sketch3.addConstraint(Sketcher.Constraint("DistanceX", -1, 1, 0, 2, Q("367.4125 in")))
sketch3.addConstraint(Sketcher.Constraint("DistanceX", -1, 1, 4, 2, 9780.164167))
pocket2 = body.newObject("PartDesign::Pocket", "Pocket001")
pocket2.Profile = sketch3
pocket2.Length = Q("0.2 in")

doc.recompute()
